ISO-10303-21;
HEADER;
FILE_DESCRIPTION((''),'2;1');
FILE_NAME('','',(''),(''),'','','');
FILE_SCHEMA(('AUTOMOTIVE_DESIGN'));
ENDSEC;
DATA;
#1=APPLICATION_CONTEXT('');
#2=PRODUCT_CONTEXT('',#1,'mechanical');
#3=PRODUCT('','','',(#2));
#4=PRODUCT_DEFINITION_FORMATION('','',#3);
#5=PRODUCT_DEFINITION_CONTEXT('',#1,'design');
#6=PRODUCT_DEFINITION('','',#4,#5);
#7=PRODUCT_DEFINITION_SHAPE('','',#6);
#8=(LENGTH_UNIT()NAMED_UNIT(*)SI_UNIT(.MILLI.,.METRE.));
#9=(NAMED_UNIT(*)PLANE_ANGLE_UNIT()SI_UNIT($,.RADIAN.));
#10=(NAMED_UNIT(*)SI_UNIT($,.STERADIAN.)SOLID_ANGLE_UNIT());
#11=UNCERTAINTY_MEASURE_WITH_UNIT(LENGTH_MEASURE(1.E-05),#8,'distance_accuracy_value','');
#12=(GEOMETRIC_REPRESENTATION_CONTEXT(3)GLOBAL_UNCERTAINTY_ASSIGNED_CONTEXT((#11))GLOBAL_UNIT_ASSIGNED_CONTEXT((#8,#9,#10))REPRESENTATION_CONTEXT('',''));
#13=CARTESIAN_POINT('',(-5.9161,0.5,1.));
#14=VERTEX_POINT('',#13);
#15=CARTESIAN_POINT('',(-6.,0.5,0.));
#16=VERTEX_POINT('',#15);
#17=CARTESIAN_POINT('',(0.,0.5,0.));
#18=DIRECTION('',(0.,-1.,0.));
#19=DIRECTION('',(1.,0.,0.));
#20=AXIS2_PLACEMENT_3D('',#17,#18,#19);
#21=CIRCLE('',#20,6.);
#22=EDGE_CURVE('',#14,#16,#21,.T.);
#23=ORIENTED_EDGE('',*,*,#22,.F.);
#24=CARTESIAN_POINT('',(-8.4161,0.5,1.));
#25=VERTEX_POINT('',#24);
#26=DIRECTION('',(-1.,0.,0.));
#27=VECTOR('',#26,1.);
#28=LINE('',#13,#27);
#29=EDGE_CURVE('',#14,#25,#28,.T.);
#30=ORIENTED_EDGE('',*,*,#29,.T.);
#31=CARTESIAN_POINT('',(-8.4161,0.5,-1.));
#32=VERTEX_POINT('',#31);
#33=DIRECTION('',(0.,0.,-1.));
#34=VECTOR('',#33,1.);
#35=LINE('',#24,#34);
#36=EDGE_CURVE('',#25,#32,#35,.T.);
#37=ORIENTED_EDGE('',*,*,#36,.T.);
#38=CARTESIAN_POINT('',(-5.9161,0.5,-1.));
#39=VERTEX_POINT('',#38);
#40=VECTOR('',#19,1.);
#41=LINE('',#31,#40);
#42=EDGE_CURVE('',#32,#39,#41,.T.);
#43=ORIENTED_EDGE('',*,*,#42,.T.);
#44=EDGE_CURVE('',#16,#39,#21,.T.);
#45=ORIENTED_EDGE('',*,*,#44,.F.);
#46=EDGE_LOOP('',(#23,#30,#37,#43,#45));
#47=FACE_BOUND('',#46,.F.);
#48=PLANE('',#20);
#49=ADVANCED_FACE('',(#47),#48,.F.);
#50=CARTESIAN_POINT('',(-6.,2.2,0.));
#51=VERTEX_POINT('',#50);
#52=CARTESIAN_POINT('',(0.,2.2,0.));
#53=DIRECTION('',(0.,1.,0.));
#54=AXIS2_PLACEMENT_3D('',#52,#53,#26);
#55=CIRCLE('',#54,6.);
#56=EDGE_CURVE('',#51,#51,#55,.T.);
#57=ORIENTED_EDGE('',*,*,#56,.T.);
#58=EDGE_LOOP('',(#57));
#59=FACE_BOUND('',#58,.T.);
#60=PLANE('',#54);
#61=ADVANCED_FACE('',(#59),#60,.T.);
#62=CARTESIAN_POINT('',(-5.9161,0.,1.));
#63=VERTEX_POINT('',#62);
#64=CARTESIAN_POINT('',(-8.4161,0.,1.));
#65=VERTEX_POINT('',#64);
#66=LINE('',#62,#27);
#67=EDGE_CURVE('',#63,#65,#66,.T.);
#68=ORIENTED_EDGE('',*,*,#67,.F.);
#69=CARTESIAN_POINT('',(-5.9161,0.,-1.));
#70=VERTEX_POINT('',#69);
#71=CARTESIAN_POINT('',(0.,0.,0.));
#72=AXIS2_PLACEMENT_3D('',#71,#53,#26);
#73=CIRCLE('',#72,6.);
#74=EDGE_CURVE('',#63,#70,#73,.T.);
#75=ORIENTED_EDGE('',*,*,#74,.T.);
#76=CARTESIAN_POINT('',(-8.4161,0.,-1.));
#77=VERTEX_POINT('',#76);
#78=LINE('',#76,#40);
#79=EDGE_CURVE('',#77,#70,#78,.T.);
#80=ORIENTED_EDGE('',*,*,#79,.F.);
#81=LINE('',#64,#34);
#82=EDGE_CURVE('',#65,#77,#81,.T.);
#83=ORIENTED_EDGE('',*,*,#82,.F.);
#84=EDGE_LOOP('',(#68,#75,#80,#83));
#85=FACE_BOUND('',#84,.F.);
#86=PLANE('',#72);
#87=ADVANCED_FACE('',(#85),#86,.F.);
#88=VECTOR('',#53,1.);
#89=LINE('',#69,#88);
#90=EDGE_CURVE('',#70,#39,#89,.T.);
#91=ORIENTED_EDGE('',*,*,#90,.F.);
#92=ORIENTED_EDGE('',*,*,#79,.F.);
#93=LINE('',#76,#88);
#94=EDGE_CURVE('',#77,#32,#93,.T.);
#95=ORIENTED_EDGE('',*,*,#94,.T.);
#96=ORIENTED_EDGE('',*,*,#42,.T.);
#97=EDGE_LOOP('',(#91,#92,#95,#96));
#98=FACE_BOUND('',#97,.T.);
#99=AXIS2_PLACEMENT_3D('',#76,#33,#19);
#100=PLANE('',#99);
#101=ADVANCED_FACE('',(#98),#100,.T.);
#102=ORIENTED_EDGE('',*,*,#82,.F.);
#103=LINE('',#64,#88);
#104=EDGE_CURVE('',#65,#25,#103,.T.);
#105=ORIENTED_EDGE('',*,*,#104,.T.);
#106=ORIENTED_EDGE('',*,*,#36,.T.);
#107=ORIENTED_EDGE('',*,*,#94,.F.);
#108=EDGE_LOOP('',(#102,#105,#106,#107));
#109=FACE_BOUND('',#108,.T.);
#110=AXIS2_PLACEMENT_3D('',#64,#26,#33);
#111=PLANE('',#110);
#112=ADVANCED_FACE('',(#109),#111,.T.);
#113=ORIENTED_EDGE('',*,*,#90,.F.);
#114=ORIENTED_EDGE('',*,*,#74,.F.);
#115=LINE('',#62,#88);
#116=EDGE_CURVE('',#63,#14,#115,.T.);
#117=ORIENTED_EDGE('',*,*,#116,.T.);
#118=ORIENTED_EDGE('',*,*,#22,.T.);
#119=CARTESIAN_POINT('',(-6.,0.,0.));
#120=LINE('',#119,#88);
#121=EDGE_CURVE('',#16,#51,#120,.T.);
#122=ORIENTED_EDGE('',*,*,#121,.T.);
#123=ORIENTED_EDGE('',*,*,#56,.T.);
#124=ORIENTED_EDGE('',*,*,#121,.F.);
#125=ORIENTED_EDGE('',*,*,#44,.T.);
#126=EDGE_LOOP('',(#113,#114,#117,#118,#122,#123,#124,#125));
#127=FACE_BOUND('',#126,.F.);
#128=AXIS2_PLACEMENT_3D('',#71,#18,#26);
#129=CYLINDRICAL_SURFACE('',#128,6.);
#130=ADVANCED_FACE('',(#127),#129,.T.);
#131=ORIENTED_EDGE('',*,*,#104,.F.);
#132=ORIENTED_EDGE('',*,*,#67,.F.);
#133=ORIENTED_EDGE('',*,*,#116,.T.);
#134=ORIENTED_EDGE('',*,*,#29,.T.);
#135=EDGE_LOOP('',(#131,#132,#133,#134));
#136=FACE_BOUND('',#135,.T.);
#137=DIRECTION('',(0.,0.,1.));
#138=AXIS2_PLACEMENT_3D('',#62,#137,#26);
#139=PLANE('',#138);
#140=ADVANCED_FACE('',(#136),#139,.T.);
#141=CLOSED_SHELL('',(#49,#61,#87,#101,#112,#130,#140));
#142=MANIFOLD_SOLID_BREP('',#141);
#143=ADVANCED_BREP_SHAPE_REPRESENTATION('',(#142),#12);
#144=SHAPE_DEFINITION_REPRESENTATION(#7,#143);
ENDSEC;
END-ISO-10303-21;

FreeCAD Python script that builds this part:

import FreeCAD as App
import Part
import Sketcher
Q = App.Units.Quantity

doc = App.newDocument("Part")
body = doc.addObject("PartDesign::Body", "Body")

# Sketch on XZ plane
sketch1 = doc.addObject("Sketcher::SketchObject", "Sketch")
body.addObject(sketch1)
sketch1.AttachmentSupport = (doc.XZ_Plane, [""])
sketch1.MapMode = "FlatFace"
sketch1.addGeometry(Part.Circle(App.Vector(0, 0, 0), App.Vector(0, 0, 1), 6), False)
sketch1.addConstraint(Sketcher.Constraint("Coincident", 0, 3, -1, 1))
sketch1.addConstraint(Sketcher.Constraint("Diameter", 0, Q("12 mm")))
pad1 = doc.addObject("PartDesign::Pad", "Pad")
body.addObject(pad1)
pad1.Profile = sketch1
pad1.Length = 2.2
pad1.Reversed = True

# Sketch on XZ plane
sketch2 = doc.addObject("Sketcher::SketchObject", "Sketch001")
body.addObject(sketch2)
sketch2.AttachmentSupport = (doc.XZ_Plane, [""])
sketch2.MapMode = "FlatFace"
sketch2.addGeometry(Part.LineSegment(App.Vector(-5.9161, -1, 0), App.Vector(-5.9161, 1, 0)), False)
sketch2.addGeometry(Part.LineSegment(App.Vector(-5.9161, 1, 0), App.Vector(-8.4161, 1, 0)), False)
sketch2.addGeometry(Part.LineSegment(App.Vector(-8.4161, 1, 0), App.Vector(-8.4161, -1, 0)), False)
sketch2.addGeometry(Part.LineSegment(App.Vector(-8.4161, -1, 0), App.Vector(-5.9161, -1, 0)), False)
sketch2.addConstraint(Sketcher.Constraint("Coincident", 0, 2, 1, 1))
sketch2.addConstraint(Sketcher.Constraint("Coincident", 1, 2, 2, 1))
sketch2.addConstraint(Sketcher.Constraint("Coincident", 2, 2, 3, 1))
sketch2.addConstraint(Sketcher.Constraint("Coincident", 3, 2, 0, 1))
sketch2.addConstraint(Sketcher.Constraint("Vertical", 0))
sketch2.addConstraint(Sketcher.Constraint("Horizontal", 1))
sketch2.addConstraint(Sketcher.Constraint("Vertical", 2))
sketch2.addConstraint(Sketcher.Constraint("Horizontal", 3))
sketch2.addConstraint(Sketcher.Constraint("DistanceY", 0, 1, 0, 2, Q("2 mm")))
sketch2.addConstraint(Sketcher.Constraint("DistanceX", 1, 2, 1, 1, Q("2.5 mm")))
sketch2.addConstraint(Sketcher.Constraint("DistanceY", -1, 1, 0, 2, Q("1 mm")))
sketch2.addConstraint(Sketcher.Constraint("DistanceX", 0, 2, -1, 1, Q("5.916 mm")))
pad2 = doc.addObject("PartDesign::Pad", "Pad001")
body.addObject(pad2)
pad2.Profile = sketch2
pad2.Length = 0.5
pad2.Reversed = True

doc.recompute()
